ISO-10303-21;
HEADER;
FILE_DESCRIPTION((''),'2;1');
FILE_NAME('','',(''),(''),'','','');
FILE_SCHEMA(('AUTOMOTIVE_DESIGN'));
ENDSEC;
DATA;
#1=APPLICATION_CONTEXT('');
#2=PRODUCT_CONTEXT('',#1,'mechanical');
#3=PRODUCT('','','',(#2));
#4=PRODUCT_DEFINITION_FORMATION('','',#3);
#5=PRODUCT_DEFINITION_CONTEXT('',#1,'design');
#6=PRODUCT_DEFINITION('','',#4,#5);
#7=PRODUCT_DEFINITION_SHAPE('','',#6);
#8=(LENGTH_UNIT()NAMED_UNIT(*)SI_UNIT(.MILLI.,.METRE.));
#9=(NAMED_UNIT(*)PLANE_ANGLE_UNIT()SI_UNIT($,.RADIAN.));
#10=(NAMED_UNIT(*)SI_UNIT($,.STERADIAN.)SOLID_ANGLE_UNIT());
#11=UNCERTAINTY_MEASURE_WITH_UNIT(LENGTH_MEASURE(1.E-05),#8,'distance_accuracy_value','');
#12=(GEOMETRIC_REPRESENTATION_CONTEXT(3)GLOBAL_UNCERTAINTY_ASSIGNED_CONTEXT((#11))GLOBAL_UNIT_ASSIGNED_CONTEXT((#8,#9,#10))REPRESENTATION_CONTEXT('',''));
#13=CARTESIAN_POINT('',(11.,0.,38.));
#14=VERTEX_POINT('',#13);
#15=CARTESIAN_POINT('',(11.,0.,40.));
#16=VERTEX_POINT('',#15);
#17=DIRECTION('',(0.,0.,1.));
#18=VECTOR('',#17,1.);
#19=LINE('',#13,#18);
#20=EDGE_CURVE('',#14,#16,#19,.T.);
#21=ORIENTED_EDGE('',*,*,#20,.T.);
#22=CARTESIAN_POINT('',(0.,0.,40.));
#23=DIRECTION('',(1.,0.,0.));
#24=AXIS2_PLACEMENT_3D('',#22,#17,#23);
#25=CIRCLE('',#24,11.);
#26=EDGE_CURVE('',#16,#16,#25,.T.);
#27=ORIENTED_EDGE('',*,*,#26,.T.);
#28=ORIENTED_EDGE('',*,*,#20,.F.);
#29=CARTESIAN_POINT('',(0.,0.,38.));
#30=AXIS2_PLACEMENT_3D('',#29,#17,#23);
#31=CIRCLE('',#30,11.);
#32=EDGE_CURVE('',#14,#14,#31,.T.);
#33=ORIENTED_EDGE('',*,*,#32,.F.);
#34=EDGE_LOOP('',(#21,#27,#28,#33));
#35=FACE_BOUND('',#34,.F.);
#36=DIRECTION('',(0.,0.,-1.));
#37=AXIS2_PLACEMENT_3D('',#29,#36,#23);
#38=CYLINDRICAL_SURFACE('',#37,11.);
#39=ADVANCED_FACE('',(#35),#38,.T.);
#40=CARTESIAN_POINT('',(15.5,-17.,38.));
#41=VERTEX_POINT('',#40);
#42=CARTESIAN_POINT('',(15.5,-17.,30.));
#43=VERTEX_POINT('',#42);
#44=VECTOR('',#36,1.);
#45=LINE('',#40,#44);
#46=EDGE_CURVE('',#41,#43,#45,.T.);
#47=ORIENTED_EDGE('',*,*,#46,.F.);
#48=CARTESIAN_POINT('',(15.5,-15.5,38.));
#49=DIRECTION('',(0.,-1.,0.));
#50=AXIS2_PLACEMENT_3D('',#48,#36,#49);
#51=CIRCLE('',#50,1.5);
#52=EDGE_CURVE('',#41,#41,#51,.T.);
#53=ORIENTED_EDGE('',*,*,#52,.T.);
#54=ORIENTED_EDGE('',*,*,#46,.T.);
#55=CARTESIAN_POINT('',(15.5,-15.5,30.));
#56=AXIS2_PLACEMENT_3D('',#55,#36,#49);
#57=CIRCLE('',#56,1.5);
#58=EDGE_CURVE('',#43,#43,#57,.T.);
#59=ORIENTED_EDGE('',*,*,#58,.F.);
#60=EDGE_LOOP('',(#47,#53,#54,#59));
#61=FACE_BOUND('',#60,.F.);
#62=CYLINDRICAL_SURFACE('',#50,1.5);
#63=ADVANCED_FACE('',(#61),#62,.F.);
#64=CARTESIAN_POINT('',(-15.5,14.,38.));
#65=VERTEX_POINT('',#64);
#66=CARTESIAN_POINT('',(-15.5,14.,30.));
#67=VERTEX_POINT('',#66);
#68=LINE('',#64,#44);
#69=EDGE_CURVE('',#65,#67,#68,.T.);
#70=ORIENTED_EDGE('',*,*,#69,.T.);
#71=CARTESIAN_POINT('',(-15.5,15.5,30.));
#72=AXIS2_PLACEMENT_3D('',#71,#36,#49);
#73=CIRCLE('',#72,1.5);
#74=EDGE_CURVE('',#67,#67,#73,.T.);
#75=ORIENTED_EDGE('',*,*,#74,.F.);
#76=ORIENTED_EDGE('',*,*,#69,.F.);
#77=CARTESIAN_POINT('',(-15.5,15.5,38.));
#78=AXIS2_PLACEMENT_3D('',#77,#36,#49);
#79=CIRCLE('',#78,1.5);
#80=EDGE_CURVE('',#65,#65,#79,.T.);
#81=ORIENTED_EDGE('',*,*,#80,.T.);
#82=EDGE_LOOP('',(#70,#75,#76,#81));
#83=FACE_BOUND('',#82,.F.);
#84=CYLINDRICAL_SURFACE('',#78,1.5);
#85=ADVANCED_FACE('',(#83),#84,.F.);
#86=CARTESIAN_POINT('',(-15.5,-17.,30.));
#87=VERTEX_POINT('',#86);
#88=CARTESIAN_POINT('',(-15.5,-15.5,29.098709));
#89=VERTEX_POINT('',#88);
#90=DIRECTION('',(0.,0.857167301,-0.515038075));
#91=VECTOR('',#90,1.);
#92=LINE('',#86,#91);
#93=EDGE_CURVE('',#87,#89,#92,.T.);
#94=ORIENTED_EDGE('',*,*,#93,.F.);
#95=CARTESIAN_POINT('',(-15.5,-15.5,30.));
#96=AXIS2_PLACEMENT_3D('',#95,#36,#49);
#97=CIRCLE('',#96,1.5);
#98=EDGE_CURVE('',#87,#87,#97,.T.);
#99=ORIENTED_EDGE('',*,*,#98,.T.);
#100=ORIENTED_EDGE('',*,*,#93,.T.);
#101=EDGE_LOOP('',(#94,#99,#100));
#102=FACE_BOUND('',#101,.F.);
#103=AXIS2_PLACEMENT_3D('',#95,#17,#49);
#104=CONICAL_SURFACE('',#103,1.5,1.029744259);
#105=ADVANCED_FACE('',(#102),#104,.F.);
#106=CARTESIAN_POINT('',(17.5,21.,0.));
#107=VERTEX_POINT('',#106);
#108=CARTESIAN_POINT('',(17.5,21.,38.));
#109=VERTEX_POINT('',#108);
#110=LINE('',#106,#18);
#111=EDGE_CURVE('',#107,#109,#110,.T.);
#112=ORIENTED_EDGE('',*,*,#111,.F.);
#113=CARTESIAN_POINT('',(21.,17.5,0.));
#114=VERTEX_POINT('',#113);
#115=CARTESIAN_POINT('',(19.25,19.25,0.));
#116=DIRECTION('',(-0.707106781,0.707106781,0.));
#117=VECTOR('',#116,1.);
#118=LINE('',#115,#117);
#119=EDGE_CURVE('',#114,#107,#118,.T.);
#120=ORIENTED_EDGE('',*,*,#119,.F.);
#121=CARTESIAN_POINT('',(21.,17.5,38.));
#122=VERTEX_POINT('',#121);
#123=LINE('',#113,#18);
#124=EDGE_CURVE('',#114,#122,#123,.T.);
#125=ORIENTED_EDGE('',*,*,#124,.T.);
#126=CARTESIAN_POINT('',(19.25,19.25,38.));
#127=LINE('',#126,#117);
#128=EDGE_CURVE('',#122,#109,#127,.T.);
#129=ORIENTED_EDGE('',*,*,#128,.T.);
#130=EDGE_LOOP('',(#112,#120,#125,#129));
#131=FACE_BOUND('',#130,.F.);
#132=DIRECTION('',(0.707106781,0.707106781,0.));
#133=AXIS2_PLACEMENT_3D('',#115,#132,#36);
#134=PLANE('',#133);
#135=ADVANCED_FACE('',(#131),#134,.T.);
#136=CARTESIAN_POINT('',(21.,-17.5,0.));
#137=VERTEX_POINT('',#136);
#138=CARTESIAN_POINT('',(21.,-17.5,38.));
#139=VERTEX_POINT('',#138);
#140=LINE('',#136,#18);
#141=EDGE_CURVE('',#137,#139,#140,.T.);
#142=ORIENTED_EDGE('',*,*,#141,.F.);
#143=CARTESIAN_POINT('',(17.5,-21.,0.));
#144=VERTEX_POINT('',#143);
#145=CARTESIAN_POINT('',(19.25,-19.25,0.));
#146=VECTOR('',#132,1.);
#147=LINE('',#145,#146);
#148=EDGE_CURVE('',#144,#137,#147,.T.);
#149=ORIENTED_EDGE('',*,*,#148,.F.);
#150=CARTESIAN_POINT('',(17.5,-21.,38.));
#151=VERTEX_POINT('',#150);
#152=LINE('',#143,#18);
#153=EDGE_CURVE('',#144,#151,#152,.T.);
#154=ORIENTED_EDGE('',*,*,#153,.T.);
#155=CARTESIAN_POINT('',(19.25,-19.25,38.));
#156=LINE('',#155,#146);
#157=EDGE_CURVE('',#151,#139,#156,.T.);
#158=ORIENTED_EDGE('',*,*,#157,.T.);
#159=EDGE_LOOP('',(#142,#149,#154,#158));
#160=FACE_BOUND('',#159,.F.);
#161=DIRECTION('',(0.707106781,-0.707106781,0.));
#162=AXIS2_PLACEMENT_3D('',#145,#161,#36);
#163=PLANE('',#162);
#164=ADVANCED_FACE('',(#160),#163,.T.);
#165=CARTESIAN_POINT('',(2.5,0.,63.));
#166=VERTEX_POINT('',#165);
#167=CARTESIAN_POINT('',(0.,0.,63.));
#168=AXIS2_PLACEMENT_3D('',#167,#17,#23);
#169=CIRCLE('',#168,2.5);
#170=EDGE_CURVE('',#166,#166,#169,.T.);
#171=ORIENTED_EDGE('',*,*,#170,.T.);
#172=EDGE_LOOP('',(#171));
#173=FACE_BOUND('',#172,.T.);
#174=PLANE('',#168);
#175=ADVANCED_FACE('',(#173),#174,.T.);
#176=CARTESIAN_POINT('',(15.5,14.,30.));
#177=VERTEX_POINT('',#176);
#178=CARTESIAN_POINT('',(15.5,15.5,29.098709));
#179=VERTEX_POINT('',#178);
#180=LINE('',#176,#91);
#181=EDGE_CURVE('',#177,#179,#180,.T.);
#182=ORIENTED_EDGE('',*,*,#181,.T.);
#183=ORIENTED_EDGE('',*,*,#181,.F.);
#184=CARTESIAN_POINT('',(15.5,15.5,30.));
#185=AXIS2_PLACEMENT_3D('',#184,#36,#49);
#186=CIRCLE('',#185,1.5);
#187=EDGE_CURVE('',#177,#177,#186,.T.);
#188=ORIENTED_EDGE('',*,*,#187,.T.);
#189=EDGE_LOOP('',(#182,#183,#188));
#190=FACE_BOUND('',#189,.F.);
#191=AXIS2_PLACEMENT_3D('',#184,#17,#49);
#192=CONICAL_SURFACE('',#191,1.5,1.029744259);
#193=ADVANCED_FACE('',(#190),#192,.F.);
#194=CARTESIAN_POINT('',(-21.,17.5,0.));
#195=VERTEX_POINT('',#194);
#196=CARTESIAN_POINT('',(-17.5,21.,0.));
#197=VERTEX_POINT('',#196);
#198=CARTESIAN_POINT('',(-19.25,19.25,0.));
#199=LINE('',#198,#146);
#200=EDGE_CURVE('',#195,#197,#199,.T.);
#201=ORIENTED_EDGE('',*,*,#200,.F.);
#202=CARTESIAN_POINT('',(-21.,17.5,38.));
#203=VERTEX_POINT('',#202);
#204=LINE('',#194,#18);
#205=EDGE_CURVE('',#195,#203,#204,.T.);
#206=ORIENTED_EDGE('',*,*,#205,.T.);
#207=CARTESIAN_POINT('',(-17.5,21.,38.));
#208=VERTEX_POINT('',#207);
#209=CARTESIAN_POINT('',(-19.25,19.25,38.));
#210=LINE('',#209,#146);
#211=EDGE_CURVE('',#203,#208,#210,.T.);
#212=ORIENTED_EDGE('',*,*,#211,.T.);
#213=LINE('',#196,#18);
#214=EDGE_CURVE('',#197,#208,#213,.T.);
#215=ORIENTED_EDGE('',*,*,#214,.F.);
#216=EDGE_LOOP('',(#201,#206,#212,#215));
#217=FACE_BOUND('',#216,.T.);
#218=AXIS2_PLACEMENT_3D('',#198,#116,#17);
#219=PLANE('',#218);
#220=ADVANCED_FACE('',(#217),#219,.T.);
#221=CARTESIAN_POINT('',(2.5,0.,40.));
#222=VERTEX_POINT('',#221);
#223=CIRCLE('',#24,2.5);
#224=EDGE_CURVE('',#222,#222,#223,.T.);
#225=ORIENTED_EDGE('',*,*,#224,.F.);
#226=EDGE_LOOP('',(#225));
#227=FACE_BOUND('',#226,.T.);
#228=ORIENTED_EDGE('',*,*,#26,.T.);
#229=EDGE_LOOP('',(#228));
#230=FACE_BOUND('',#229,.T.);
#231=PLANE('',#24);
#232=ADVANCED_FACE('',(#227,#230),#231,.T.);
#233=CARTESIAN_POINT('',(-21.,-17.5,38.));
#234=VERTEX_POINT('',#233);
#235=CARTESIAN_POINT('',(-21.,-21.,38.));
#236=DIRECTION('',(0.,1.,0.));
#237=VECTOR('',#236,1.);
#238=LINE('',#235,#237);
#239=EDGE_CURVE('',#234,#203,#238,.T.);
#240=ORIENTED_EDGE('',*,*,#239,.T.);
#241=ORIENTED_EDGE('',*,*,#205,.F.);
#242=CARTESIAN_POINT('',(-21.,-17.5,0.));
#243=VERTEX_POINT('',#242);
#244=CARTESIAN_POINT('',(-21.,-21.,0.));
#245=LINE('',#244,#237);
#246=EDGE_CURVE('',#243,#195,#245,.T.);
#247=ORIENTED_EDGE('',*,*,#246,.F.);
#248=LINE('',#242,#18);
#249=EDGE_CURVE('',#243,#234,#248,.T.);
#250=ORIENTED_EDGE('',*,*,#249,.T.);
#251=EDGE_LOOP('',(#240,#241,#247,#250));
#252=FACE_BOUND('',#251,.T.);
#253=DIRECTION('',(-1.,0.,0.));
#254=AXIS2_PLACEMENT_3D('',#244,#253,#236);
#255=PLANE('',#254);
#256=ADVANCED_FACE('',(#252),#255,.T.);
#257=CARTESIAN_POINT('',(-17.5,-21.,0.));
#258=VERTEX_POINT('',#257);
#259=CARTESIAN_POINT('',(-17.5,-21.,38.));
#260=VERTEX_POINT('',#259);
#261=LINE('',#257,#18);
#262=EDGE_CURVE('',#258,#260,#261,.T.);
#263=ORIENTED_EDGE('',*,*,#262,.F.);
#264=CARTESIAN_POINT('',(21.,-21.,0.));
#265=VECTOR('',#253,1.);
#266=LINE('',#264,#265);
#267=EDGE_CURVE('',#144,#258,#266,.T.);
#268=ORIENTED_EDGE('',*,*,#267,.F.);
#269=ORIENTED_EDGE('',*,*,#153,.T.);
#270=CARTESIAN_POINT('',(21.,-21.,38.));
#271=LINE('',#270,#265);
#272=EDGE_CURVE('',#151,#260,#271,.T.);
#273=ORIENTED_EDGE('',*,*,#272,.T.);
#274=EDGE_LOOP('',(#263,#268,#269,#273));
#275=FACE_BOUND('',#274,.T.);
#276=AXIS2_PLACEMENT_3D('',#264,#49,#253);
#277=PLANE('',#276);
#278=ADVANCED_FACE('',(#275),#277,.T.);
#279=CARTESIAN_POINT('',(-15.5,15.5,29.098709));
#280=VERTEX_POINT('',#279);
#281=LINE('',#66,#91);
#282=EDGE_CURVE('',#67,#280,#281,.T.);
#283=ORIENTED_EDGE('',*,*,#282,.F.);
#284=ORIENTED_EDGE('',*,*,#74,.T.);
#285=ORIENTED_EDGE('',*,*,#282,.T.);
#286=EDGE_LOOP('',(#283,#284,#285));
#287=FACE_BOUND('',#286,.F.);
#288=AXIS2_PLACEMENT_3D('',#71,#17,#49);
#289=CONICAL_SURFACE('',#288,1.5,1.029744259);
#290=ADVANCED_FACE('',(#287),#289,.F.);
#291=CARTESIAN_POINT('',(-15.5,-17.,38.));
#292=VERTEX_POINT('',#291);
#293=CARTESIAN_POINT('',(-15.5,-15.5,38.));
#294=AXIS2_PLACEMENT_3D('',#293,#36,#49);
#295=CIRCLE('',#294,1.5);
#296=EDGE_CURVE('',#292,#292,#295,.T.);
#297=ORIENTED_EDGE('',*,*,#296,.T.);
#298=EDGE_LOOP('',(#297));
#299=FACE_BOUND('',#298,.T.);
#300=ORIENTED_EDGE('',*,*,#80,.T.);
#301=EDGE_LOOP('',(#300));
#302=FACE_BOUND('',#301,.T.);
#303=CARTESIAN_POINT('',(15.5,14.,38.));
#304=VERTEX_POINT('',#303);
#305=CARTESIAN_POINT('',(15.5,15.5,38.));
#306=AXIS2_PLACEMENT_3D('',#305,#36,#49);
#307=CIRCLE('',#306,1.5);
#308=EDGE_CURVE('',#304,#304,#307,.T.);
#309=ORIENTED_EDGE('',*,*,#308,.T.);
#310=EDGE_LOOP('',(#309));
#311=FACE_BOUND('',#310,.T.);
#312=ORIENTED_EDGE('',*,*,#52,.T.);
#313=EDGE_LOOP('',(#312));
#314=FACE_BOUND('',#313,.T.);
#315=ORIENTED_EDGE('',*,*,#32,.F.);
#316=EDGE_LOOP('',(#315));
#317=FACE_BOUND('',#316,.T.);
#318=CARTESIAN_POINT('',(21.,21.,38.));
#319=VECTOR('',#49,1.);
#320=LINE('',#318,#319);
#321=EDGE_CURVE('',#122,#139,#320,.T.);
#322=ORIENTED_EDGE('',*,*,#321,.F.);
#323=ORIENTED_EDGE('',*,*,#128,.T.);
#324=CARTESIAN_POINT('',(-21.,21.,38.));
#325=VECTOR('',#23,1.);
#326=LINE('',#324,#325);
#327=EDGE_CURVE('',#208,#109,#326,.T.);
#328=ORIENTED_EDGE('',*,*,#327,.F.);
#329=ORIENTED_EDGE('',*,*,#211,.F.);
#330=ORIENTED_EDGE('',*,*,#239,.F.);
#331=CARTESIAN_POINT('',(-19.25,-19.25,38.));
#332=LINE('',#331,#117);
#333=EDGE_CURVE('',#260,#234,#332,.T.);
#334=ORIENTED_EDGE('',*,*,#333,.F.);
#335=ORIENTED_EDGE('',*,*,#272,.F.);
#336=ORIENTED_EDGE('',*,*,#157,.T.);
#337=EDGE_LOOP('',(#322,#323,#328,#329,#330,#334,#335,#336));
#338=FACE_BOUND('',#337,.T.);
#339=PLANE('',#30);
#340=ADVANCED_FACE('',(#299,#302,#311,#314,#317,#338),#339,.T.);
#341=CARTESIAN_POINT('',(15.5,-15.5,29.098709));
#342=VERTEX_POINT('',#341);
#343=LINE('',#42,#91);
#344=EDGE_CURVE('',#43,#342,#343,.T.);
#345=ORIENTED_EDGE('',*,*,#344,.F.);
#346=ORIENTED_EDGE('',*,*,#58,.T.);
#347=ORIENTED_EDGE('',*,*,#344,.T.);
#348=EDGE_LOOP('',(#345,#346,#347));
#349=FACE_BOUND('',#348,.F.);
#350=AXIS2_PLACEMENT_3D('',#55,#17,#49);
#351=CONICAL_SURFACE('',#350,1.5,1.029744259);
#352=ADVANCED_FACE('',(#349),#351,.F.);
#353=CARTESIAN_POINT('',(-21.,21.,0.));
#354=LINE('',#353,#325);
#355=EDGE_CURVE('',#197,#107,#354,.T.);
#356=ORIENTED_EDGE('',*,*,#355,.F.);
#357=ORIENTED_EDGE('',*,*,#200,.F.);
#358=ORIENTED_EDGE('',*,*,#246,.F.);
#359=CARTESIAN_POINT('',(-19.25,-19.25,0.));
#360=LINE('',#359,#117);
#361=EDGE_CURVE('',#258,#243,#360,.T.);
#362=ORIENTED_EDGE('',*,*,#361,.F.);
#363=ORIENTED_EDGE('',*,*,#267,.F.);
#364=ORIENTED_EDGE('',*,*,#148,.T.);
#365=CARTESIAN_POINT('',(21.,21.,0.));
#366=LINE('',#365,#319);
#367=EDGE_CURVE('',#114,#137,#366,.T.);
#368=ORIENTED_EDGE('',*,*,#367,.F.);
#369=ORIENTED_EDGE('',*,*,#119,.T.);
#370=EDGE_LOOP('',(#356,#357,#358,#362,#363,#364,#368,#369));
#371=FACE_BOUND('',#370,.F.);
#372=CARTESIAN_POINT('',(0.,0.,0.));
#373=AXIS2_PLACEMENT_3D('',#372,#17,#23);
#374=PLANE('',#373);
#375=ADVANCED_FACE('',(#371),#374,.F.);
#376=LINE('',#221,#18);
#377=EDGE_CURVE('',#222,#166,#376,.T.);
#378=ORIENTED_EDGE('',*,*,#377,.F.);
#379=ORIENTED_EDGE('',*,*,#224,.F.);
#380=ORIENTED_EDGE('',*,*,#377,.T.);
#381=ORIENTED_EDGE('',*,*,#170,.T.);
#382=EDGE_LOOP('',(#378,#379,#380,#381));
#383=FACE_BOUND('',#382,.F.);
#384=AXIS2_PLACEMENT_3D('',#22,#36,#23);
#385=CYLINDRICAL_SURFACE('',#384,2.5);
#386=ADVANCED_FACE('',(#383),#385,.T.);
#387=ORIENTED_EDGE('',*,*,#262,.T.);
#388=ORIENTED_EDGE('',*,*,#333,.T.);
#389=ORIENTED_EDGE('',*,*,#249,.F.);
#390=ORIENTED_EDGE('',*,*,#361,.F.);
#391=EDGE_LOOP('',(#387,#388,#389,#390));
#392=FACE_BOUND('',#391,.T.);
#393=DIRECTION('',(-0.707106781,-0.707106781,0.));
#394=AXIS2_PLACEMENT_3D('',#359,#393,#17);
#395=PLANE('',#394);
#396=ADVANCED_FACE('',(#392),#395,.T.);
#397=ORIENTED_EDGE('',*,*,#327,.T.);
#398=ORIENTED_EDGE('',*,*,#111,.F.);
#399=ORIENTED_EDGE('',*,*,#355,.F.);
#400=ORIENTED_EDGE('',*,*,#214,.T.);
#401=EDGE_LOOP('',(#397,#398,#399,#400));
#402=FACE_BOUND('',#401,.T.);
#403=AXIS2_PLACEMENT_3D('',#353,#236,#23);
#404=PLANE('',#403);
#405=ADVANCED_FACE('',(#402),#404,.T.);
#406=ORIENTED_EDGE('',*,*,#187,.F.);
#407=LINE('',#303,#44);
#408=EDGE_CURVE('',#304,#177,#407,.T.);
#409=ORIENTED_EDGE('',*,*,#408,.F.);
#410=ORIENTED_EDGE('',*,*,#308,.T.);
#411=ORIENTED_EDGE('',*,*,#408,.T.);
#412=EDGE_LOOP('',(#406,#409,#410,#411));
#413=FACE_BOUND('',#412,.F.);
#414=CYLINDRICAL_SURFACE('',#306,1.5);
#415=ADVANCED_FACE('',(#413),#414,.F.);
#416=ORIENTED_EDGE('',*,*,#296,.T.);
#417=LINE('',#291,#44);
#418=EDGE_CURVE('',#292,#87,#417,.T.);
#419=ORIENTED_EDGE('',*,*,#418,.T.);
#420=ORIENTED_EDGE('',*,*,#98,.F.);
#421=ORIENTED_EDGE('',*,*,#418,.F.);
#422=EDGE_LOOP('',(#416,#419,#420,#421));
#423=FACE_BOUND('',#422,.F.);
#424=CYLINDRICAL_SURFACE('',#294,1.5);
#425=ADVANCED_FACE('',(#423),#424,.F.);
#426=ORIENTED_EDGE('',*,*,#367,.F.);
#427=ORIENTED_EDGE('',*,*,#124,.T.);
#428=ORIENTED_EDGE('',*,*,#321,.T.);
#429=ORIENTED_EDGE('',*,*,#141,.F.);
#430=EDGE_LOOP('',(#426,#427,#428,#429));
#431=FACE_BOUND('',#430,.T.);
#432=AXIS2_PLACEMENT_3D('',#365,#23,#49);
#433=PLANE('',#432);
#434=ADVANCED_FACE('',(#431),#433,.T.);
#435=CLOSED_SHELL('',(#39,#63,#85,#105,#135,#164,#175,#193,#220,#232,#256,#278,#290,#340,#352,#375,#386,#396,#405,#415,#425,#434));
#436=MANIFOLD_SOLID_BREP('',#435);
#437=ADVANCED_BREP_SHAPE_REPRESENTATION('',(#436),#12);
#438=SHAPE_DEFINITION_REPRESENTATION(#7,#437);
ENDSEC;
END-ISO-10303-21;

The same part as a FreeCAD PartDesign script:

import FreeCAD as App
import Part
import Sketcher

V = App.Vector
Q = App.Units.Quantity


def edges_at(feature, points):
    """Names of the edges that pass closest to the given points."""
    edges = feature.Shape.Edges
    near = lambda p: min(range(len(edges)), key=lambda i: edges[i].distToShape(Part.Vertex(*p))[0])
    return sorted({f"Edge{near(p) + 1}" for p in points})

doc = App.newDocument("Part")
body = doc.addObject("PartDesign::Body", "Body")

# Sketch on XY plane
sketch1 = body.newObject("Sketcher::SketchObject", "Sketch")
sketch1.AttachmentSupport = (doc.getObject("XY_Plane"), [""])
sketch1.MapMode = "FlatFace"
sketch1.addGeometry([
    Part.LineSegment(V(-21, -21, 0), V(21, -21, 0)),
    Part.LineSegment(V(21, -21, 0), V(21, 21, 0)),
    Part.LineSegment(V(21, 21, 0), V(-21, 21, 0)),
    Part.LineSegment(V(-21, 21, 0), V(-21, -21, 0)),
], False)
sketch1.addConstraint([
    Sketcher.Constraint("Coincident", 0, 2, 1, 1),
    Sketcher.Constraint("Coincident", 1, 2, 2, 1),
    Sketcher.Constraint("Coincident", 2, 2, 3, 1),
    Sketcher.Constraint("Coincident", 3, 2, 0, 1),
    Sketcher.Constraint("Horizontal", 0),
    Sketcher.Constraint("Vertical", 1),
    Sketcher.Constraint("Horizontal", 2),
    Sketcher.Constraint("Vertical", 3),
    Sketcher.Constraint("Symmetric", 0, 2, 2, 2, -1, 1),
    Sketcher.Constraint("Equal", 2, 1),
    Sketcher.Constraint("DistanceX", 0, 1, 0, 2, Q("42 mm")),
])
pad1 = body.newObject("PartDesign::Pad", "Pad")
pad1.Profile = sketch1
pad1.Length = 38

# Sketch on XY plane
sketch2 = body.newObject("Sketcher::SketchObject", "Sketch001")
sketch2.AttachmentSupport = (doc.getObject("XY_Plane"), [""])
sketch2.MapMode = "FlatFace"
sketch2.AttachmentOffset = App.Placement(V(0, 0, 38), App.Rotation())
sketch2.addGeometry([
    Part.Circle(V(-15.5, 15.5, 0), V(0, 0, 1), 1.5),
    Part.Circle(V(-15.5, -15.5, 0), V(0, 0, 1), 1.5),
    Part.Circle(V(15.5, -15.5, 0), V(0, 0, 1), 1.5),
    Part.Circle(V(15.5, 15.5, 0), V(0, 0, 1), 1.5),
], False)
sketch2.addConstraint([
    Sketcher.Constraint("Equal", 0, 1),
    Sketcher.Constraint("Equal", 1, 2),
    Sketcher.Constraint("Equal", 2, 3),
    Sketcher.Constraint("Symmetric", 0, 3, 2, 3, -1, 1),
    Sketcher.Constraint("Symmetric", 1, 3, 3, 3, -1, 1),
    Sketcher.Constraint("Symmetric", 1, 3, 2, 3, -2),
    Sketcher.Constraint("Diameter", 0, Q("3 mm")),
    Sketcher.Constraint("DistanceY", 1, 3, 0, 3, Q("31 mm")),
    Sketcher.Constraint("DistanceX", 1, 3, 2, 3, Q("31 mm")),
])
doc.recompute()
hole = body.newObject("PartDesign::Hole", "Hole")
hole.Profile = sketch2
hole.ThreadType = "None"
hole.Diameter = 3
hole.DepthType = "Dimension"
hole.Depth = 8
hole.DrillPoint = "Angled"
hole.DrillPointAngle = 118
doc.recompute()

chamfer = body.newObject("PartDesign::Chamfer", "Chamfer")
chamfer.Base = (hole, edges_at(hole, [
    (21, 21, 19),
    (21, -21, 19),
    (-21, 21, 19),
    (-21, -21, 19),
]))
chamfer.Size = 3.5

# Sketch on XY plane
sketch3 = body.newObject("Sketcher::SketchObject", "Sketch002")
sketch3.AttachmentSupport = (doc.getObject("XY_Plane"), [""])
sketch3.MapMode = "FlatFace"
sketch3.AttachmentOffset = App.Placement(V(0, 0, 38), App.Rotation())
sketch3.addGeometry(Part.Circle(V(0, 0, 0), V(0, 0, 1), 11), False)
sketch3.addConstraint([
    Sketcher.Constraint("Coincident", 0, 3, -1, 1),
    Sketcher.Constraint("Diameter", 0, Q("22 mm")),
])
pad2 = body.newObject("PartDesign::Pad", "Pad001")
pad2.Profile = sketch3
pad2.Length = 2

# Sketch on XY plane
sketch4 = body.newObject("Sketcher::SketchObject", "Sketch003")
sketch4.AttachmentSupport = (doc.getObject("XY_Plane"), [""])
sketch4.MapMode = "FlatFace"
sketch4.AttachmentOffset = App.Placement(V(0, 0, 40), App.Rotation())
sketch4.addGeometry(Part.Circle(V(0, 0, 0), V(0, 0, 1), 2.5), False)
sketch4.addConstraint([
    Sketcher.Constraint("Coincident", 0, 3, -1, 1),
    Sketcher.Constraint("Diameter", 0, Q("5 mm")),
])
pad3 = body.newObject("PartDesign::Pad", "Pad002")
pad3.Profile = sketch4
pad3.Length = 23

doc.recompute()
